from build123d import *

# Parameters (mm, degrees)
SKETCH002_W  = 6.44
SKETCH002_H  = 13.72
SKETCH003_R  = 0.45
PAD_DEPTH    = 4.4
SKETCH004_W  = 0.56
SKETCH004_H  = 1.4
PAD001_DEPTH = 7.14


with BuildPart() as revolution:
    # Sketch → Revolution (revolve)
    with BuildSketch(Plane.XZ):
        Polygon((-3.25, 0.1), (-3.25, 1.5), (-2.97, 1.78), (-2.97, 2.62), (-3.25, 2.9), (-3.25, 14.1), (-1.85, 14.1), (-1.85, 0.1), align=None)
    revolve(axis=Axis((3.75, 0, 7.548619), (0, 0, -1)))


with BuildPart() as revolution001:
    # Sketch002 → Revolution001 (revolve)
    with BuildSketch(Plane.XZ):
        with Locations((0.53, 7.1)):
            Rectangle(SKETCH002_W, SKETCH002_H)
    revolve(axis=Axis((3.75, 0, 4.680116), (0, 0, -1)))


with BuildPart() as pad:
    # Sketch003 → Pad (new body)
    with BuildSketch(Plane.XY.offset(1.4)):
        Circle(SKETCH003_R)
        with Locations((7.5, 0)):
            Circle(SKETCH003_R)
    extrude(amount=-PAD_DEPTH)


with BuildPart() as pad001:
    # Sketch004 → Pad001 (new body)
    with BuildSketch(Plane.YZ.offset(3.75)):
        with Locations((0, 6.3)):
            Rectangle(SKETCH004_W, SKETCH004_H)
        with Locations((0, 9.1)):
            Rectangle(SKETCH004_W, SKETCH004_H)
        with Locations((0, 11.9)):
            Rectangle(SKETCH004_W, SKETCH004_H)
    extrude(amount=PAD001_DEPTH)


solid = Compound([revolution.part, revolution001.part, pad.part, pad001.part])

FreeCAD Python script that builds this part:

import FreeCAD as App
import Part
import Sketcher

doc = App.newDocument("Part")
body = doc.addObject("PartDesign::Body", "Body")

sketch1 = body.newObject("Sketcher::SketchObject", "Sketch")
sketch1.AttachmentSupport = (doc.getObject("XZ_Plane"), [""])
sketch1.MapMode = "FlatFace"
sketch1.addGeometry(Part.LineSegment(App.Vector(-3.25, 1.5, 0), App.Vector(-3.25, 0.1, 0)), False)
sketch1.addGeometry(Part.LineSegment(App.Vector(-3.25, 0.1, 0), App.Vector(-1.85, 0.1, 0)), False)
sketch1.addGeometry(Part.LineSegment(App.Vector(-1.85, 0.1, 0), App.Vector(-1.85, 14.1, 0)), False)
sketch1.addGeometry(Part.LineSegment(App.Vector(-1.85, 14.1, 0), App.Vector(-3.25, 14.1, 0)), False)
sketch1.addGeometry(Part.LineSegment(App.Vector(-3.25, 14.1, 0), App.Vector(-3.25, 2.9, 0)), False)
sketch1.addGeometry(Part.LineSegment(App.Vector(-3.25, 2.9, 0), App.Vector(-2.97, 2.62, 0)), False)
sketch1.addGeometry(Part.LineSegment(App.Vector(-2.97, 2.62, 0), App.Vector(-2.97, 1.78, 0)), False)
sketch1.addGeometry(Part.LineSegment(App.Vector(-2.97, 1.78, 0), App.Vector(-3.25, 1.5, 0)), False)
sketch1.addGeometry(Part.LineSegment(App.Vector(3.75, 14.1, 0), App.Vector(3.75, 0.1, 0)), True)
sketch1.addConstraint(Sketcher.Constraint("Coincident", 0, 2, 1, 1))
sketch1.addConstraint(Sketcher.Constraint("Coincident", 1, 2, 2, 1))
sketch1.addConstraint(Sketcher.Constraint("Coincident", 2, 2, 3, 1))
sketch1.addConstraint(Sketcher.Constraint("Coincident", 3, 2, 4, 1))
sketch1.addConstraint(Sketcher.Constraint("Coincident", 4, 2, 5, 1))
sketch1.addConstraint(Sketcher.Constraint("Coincident", 5, 2, 6, 1))
sketch1.addConstraint(Sketcher.Constraint("Coincident", 6, 2, 7, 1))
sketch1.addConstraint(Sketcher.Constraint("Coincident", 7, 2, 0, 1))
sketch1.addConstraint(Sketcher.Constraint("Vertical", 0))
sketch1.addConstraint(Sketcher.Constraint("Horizontal", 1))
sketch1.addConstraint(Sketcher.Constraint("Vertical", 2))
sketch1.addConstraint(Sketcher.Constraint("Horizontal", 3))
sketch1.addConstraint(Sketcher.Constraint("Vertical", 4))
sketch1.addConstraint(Sketcher.Constraint("Vertical", 6))
sketch1.addConstraint(Sketcher.Constraint("Vertical", 8))
sketch1.addConstraint(Sketcher.Constraint("Perpendicular", 5, 7))
sketch1.addConstraint(Sketcher.Constraint("Horizontal", 3, 2, 8, 1))
sketch1.addConstraint(Sketcher.Constraint("Horizontal", 1, 2, 8, 2))
sketch1.addConstraint(Sketcher.Constraint("Vertical", 0, 2, 3, 2))
sketch1.addConstraint(Sketcher.Constraint("Equal", 3, 0))
sketch1.addConstraint(Sketcher.Constraint("Equal", 5, 7))
sketch1.addConstraint(Sketcher.Constraint("DistanceY", 2, 1, 2, 2, 14.0))
sketch1.addConstraint(Sketcher.Constraint("DistanceX", 1, 1, 1, 2, 1.4))
sketch1.addConstraint(Sketcher.Constraint("DistanceY", 4, 2, 4, 1, 11.2))
sketch1.addConstraint(Sketcher.Constraint("DistanceX", 3, 2, 8, 1, 7.0))
sketch1.addConstraint(Sketcher.Constraint("DistanceY", 6, 2, 6, 1, 0.84))
sketch1.addConstraint(Sketcher.Constraint("DistanceY", -1, 1, 0, 2, 0.1))
sketch1.addConstraint(Sketcher.Constraint("DistanceX", 0, 2, -1, 1, 3.25))
revolution = body.newObject("PartDesign::Revolution", "Revolution")
revolution.Profile = sketch1
revolution.ReferenceAxis = (sketch1, ["Axis0"])
revolution.Angle = 360
body2 = doc.addObject("PartDesign::Body", "Body001")

sketch2 = body2.newObject("Sketcher::SketchObject", "Sketch001")
sketch2.AttachmentSupport = (doc.getObject("XZ_Plane001"), [""])
sketch2.MapMode = "FlatFace"
sketch2.addGeometry(Part.LineSegment(App.Vector(-3, 14, 0), App.Vector(-3, 0, 0)), False)
sketch2.addGeometry(Part.LineSegment(App.Vector(-3, 0, 0), App.Vector(4, 0, 0)), False)
sketch2.addGeometry(Part.LineSegment(App.Vector(4, 0, 0), App.Vector(4, 14, 0)), False)
sketch2.addGeometry(Part.LineSegment(App.Vector(4, 14, 0), App.Vector(-3, 14, 0)), False)
sketch2.addGeometry(Part.LineSegment(App.Vector(4, 14, 0), App.Vector(4, 0, 0)), True)
sketch2.addConstraint(Sketcher.Constraint("Coincident", 0, 2, 1, 1))
sketch2.addConstraint(Sketcher.Constraint("Coincident", 1, 2, 2, 1))
sketch2.addConstraint(Sketcher.Constraint("Coincident", 2, 2, 3, 1))
sketch2.addConstraint(Sketcher.Constraint("Coincident", 3, 2, 0, 1))
sketch2.addConstraint(Sketcher.Constraint("Vertical", 0))
sketch2.addConstraint(Sketcher.Constraint("Horizontal", 1))
sketch2.addConstraint(Sketcher.Constraint("Vertical", 2))
sketch2.addConstraint(Sketcher.Constraint("Horizontal", 3))
sketch2.addConstraint(Sketcher.Constraint("Vertical", 4))
sketch2.addConstraint(Sketcher.Constraint("Coincident", 4, 1, 2, 2))
sketch2.addConstraint(Sketcher.Constraint("Horizontal", 0, 2, 4, 2))
sketch2.addConstraint(Sketcher.Constraint("DistanceX", 1, 1, 1, 2, 6.44))
sketch2.addConstraint(Sketcher.Constraint("DistanceY", 0, 2, 0, 1, 13.72))
sketch2.addConstraint(Sketcher.Constraint("DistanceX", 0, 2, -1, 1, 2.69))
sketch2.addConstraint(Sketcher.Constraint("DistanceY", -1, 1, 0, 2, 0.24))
revolution2 = body2.newObject("PartDesign::Revolution", "Revolution001")
revolution2.Profile = sketch2
revolution2.ReferenceAxis = (sketch2, ["Axis0"])
revolution2.Angle = 360
body3 = doc.addObject("PartDesign::Body", "Body002")
body3.AllowCompound = True

sketch3 = body3.newObject("Sketcher::SketchObject", "Sketch002")
sketch3.AttachmentSupport = (doc.getObject("XY_Plane002"), [""])
sketch3.MapMode = "FlatFace"
sketch3.AttachmentOffset = App.Placement(App.Vector(0, 0, 1.4), App.Rotation())
sketch3.addGeometry(Part.Circle(App.Vector(0, 0, 0), App.Vector(0, 0, 1), 0.45), False)
sketch3.addGeometry(Part.Circle(App.Vector(7.5, 0, 0), App.Vector(0, 0, 1), 0.45), False)
sketch3.addConstraint(Sketcher.Constraint("Coincident", 0, 3, -1, 1))
sketch3.addConstraint(Sketcher.Constraint("Equal", 0, 1))
sketch3.addConstraint(Sketcher.Constraint("PointOnObject", 1, 3, -1))
sketch3.addConstraint(Sketcher.Constraint("Diameter", 0, 0.9))
sketch3.addConstraint(Sketcher.Constraint("DistanceX", -1, 1, 1, 3, 7.5))
pad1 = body3.newObject("PartDesign::Pad", "Pad")
pad1.Profile = sketch3
pad1.Length = 4.4
pad1.Reversed = True
body4 = doc.addObject("PartDesign::Body", "Body003")
body4.AllowCompound = True

sketch4 = body4.newObject("Sketcher::SketchObject", "Sketch003")
sketch4.AttachmentSupport = (doc.getObject("YZ_Plane003"), [""])
sketch4.MapMode = "FlatFace"
sketch4.AttachmentOffset = App.Placement(App.Vector(0, 0, 3.75), App.Rotation())
sketch4.addGeometry(Part.LineSegment(App.Vector(-0.3, 7, 0), App.Vector(-0.3, 5.6, 0)), False)
sketch4.addGeometry(Part.LineSegment(App.Vector(-0.3, 5.6, 0), App.Vector(0.3, 5.6, 0)), False)
sketch4.addGeometry(Part.LineSegment(App.Vector(0.3, 5.6, 0), App.Vector(0.3, 7, 0)), False)
sketch4.addGeometry(Part.LineSegment(App.Vector(0.3, 7, 0), App.Vector(-0.3, 7, 0)), False)
sketch4.addGeometry(Part.LineSegment(App.Vector(-0.3, 9.8, 0), App.Vector(-0.3, 8.4, 0)), False)
sketch4.addGeometry(Part.LineSegment(App.Vector(-0.3, 8.4, 0), App.Vector(0.3, 8.4, 0)), False)
sketch4.addGeometry(Part.LineSegment(App.Vector(0.3, 8.4, 0), App.Vector(0.3, 9.8, 0)), False)
sketch4.addGeometry(Part.LineSegment(App.Vector(0.3, 9.8, 0), App.Vector(-0.3, 9.8, 0)), False)
sketch4.addGeometry(Part.LineSegment(App.Vector(-0.3, 12.6, 0), App.Vector(-0.3, 11.2, 0)), False)
sketch4.addGeometry(Part.LineSegment(App.Vector(-0.3, 11.2, 0), App.Vector(0.3, 11.2, 0)), False)
sketch4.addGeometry(Part.LineSegment(App.Vector(0.3, 11.2, 0), App.Vector(0.3, 12.6, 0)), False)
sketch4.addGeometry(Part.LineSegment(App.Vector(0.3, 12.6, 0), App.Vector(-0.3, 12.6, 0)), False)
sketch4.addConstraint(Sketcher.Constraint("Coincident", 0, 2, 1, 1))
sketch4.addConstraint(Sketcher.Constraint("Coincident", 1, 2, 2, 1))
sketch4.addConstraint(Sketcher.Constraint("Coincident", 2, 2, 3, 1))
sketch4.addConstraint(Sketcher.Constraint("Coincident", 3, 2, 0, 1))
sketch4.addConstraint(Sketcher.Constraint("Coincident", 4, 2, 5, 1))
sketch4.addConstraint(Sketcher.Constraint("Coincident", 5, 2, 6, 1))
sketch4.addConstraint(Sketcher.Constraint("Coincident", 6, 2, 7, 1))
sketch4.addConstraint(Sketcher.Constraint("Coincident", 7, 2, 4, 1))
sketch4.addConstraint(Sketcher.Constraint("Coincident", 8, 2, 9, 1))
sketch4.addConstraint(Sketcher.Constraint("Coincident", 9, 2, 10, 1))
sketch4.addConstraint(Sketcher.Constraint("Coincident", 10, 2, 11, 1))
sketch4.addConstraint(Sketcher.Constraint("Coincident", 11, 2, 8, 1))
sketch4.addConstraint(Sketcher.Constraint("Vertical", 0))
sketch4.addConstraint(Sketcher.Constraint("Horizontal", 1))
sketch4.addConstraint(Sketcher.Constraint("Vertical", 2))
sketch4.addConstraint(Sketcher.Constraint("Horizontal", 3))
sketch4.addConstraint(Sketcher.Constraint("Vertical", 4))
sketch4.addConstraint(Sketcher.Constraint("Horizontal", 5))
sketch4.addConstraint(Sketcher.Constraint("Vertical", 6))
sketch4.addConstraint(Sketcher.Constraint("Horizontal", 7))
sketch4.addConstraint(Sketcher.Constraint("Vertical", 8))
sketch4.addConstraint(Sketcher.Constraint("Horizontal", 9))
sketch4.addConstraint(Sketcher.Constraint("Vertical", 10))
sketch4.addConstraint(Sketcher.Constraint("Horizontal", 11))
sketch4.addConstraint(Sketcher.Constraint("Vertical", 3, 2, 4, 2))
sketch4.addConstraint(Sketcher.Constraint("Vertical", 2, 2, 5, 2))
sketch4.addConstraint(Sketcher.Constraint("Vertical", 7, 2, 8, 2))
sketch4.addConstraint(Sketcher.Constraint("Vertical", 6, 2, 9, 2))
sketch4.addConstraint(Sketcher.Constraint("Equal", 2, 4))
sketch4.addConstraint(Sketcher.Constraint("Equal", 6, 8))
sketch4.addConstraint(Sketcher.Constraint("DistanceY", 0, 2, 0, 1, 1.4))
sketch4.addConstraint(Sketcher.Constraint("DistanceY", -1, 1, 2, 2, 7.0))
sketch4.addConstraint(Sketcher.Constraint("DistanceX", 1, 1, 1, 2, 0.56))
sketch4.addConstraint(Sketcher.Constraint("DistanceY", -1, 1, 4, 2, 8.4))
sketch4.addConstraint(Sketcher.Constraint("DistanceY", -1, 1, 8, 2, 11.2))
sketch4.addConstraint(Sketcher.Constraint("DistanceX", 0, 2, -1, 1, 0.28))
pad2 = body4.newObject("PartDesign::Pad", "Pad001")
pad2.Profile = sketch4
pad2.Length = 7.14

doc.recompute()
